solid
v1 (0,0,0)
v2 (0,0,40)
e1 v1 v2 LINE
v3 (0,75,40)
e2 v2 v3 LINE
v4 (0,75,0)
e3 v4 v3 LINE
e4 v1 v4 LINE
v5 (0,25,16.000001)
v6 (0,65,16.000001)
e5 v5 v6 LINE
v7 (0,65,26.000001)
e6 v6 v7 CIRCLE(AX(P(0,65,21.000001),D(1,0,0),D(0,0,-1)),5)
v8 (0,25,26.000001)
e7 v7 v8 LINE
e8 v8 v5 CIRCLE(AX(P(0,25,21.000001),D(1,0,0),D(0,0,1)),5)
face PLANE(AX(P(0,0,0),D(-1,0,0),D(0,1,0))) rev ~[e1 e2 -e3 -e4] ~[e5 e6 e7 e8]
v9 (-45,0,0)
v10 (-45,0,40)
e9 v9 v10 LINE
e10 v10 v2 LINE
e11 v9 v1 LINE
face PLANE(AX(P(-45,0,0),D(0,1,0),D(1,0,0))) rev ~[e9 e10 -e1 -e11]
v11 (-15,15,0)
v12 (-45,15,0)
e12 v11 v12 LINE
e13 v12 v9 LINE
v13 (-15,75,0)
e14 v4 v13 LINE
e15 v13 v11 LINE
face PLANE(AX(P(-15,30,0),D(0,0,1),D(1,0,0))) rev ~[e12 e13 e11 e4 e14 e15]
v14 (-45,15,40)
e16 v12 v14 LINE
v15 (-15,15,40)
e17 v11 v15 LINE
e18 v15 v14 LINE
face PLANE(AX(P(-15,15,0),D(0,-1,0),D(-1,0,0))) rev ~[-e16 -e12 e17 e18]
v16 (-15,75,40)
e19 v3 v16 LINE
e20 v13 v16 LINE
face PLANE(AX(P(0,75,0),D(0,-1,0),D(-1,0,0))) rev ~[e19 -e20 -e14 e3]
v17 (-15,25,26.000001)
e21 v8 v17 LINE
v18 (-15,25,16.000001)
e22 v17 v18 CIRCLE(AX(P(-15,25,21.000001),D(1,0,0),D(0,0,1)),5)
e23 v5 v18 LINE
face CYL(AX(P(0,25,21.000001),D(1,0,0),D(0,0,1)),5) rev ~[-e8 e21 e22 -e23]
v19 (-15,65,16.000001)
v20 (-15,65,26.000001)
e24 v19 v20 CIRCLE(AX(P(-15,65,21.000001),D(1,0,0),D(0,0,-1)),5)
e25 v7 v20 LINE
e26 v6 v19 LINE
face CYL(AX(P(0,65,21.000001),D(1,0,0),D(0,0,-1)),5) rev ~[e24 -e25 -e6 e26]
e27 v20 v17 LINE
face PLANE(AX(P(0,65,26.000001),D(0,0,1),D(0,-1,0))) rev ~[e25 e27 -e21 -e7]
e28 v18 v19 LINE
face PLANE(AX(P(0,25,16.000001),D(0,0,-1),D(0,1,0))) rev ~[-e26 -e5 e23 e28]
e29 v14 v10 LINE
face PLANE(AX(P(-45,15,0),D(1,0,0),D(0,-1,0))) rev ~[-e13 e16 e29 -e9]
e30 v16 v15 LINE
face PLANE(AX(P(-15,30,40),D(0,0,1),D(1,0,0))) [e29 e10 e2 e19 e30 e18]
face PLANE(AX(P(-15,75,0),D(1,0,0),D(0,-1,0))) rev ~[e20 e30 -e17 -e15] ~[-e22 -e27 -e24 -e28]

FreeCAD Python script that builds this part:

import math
import FreeCAD as App
import Part
import Sketcher
from FreeCAD import Vector


def add_polygon(sketch, points):
    """Adds a closed chain of lines whose ends are joined by coincident constraints."""
    first, n = sketch.GeometryCount, len(points)
    for a, b in zip(points, points[1:] + points[:1]):
        sketch.addGeometry(Part.LineSegment(App.Vector(*a, 0), App.Vector(*b, 0)), False)
    for i in range(n):
        sketch.addConstraint(Sketcher.Constraint("Coincident", first + i, 2, first + (i + 1) % n, 1))

doc = App.newDocument("Part")
params = doc.addObject("Spreadsheet::Sheet", "Params")
for row, (alias, value) in enumerate([
    ("sketch1_width", "45 mm"),
    ("sketch1_width2", "15 mm"),
    ("sketch1_height", "75 mm"),
    ("pad1_length", "40 mm"),
    ("sketch2_radius", "5 mm"),
    ("sketch2_width", "40 mm"),
], start=1):
    params.set(f"A{row}", alias)
    params.set(f"B{row}", "=" + value)
    params.setAlias(f"B{row}", alias)

body = doc.addObject("PartDesign::Body", "Body")

# Sketch on XY plane
sketch1 = doc.addObject("Sketcher::SketchObject", "Sketch")
body.addObject(sketch1)
sketch1.AttachmentSupport = (doc.XY_Plane, [""])
sketch1.MapMode = "FlatFace"
add_polygon(sketch1, [(-45, 0), (0, 0), (0, 75), (-15, 75), (-15, 15), (-45, 15)])  # lines 0-5
sketch1.addConstraint([
    Sketcher.Constraint("Horizontal", 0),
    Sketcher.Constraint("Vertical", 1),
    Sketcher.Constraint("Horizontal", 2),
    Sketcher.Constraint("Vertical", 3),
    Sketcher.Constraint("Horizontal", 4),
    Sketcher.Constraint("Vertical", 5),
    Sketcher.Constraint("Coincident", 0, 2, -1, 1),
    Sketcher.Constraint("Equal", 2, 5),
    Sketcher.Constraint("DistanceX", 0, 1, 0, 2, 45.0),
    Sketcher.Constraint("DistanceX", 2, 2, 2, 1, 15.0),
    Sketcher.Constraint("DistanceY", 1, 1, 1, 2, 75.0),
])
sketch1.setExpression("Constraints[14]", "Params.sketch1_width")
sketch1.setExpression("Constraints[15]", "Params.sketch1_width2")
sketch1.setExpression("Constraints[16]", "Params.sketch1_height")
pad1 = doc.addObject("PartDesign::Pad", "Pad")
body.addObject(pad1)
pad1.Profile = sketch1
pad1.setExpression("Length", "Params.pad1_length")

# Sketch on YZ plane
sketch2 = doc.addObject("Sketcher::SketchObject", "Sketch001")
body.addObject(sketch2)
sketch2.AttachmentSupport = (doc.YZ_Plane, [""])
sketch2.MapMode = "FlatFace"
sketch2.addGeometry([
    Part.LineSegment(Vector(65, 26.000001, 0), Vector(25, 26.000001, 0)),
    Part.ArcOfCircle(Part.Circle(Vector(25, 21.000001, 0), Vector(0, 0, 1), 5), math.radians(90), math.radians(270)),
    Part.LineSegment(Vector(25, 16.000001, 0), Vector(65, 16.000001, 0)),
    Part.ArcOfCircle(Part.Circle(Vector(65, 21.000001, 0), Vector(0, 0, 1), 5), math.radians(-90), math.radians(90)),
], False)
sketch2.addConstraint([
    Sketcher.Constraint("Tangent", 0, 2, 1, 1),
    Sketcher.Constraint("Tangent", 1, 2, 2, 1),
    Sketcher.Constraint("Tangent", 2, 2, 3, 1),
    Sketcher.Constraint("Tangent", 3, 2, 0, 1),
    Sketcher.Constraint("Horizontal", 0),
    Sketcher.Constraint("Horizontal", 2),
    Sketcher.Constraint("Radius", 1, 5.0),
    Sketcher.Constraint("DistanceX", 0, 2, 0, 1, 40.0),
    Sketcher.Constraint("DistanceX", -1, 1, 1, 3, 25.0),
    Sketcher.Constraint("DistanceY", -1, 1, 1, 3, 21.000001),
])
sketch2.setExpression("Constraints[6]", "Params.sketch2_radius")
sketch2.setExpression("Constraints[7]", "Params.sketch2_width")
pocket1 = doc.addObject("PartDesign::Pocket", "Pocket")
body.addObject(pocket1)
pocket1.Profile = sketch2
pocket1.Type = "ThroughAll"

doc.recompute()
